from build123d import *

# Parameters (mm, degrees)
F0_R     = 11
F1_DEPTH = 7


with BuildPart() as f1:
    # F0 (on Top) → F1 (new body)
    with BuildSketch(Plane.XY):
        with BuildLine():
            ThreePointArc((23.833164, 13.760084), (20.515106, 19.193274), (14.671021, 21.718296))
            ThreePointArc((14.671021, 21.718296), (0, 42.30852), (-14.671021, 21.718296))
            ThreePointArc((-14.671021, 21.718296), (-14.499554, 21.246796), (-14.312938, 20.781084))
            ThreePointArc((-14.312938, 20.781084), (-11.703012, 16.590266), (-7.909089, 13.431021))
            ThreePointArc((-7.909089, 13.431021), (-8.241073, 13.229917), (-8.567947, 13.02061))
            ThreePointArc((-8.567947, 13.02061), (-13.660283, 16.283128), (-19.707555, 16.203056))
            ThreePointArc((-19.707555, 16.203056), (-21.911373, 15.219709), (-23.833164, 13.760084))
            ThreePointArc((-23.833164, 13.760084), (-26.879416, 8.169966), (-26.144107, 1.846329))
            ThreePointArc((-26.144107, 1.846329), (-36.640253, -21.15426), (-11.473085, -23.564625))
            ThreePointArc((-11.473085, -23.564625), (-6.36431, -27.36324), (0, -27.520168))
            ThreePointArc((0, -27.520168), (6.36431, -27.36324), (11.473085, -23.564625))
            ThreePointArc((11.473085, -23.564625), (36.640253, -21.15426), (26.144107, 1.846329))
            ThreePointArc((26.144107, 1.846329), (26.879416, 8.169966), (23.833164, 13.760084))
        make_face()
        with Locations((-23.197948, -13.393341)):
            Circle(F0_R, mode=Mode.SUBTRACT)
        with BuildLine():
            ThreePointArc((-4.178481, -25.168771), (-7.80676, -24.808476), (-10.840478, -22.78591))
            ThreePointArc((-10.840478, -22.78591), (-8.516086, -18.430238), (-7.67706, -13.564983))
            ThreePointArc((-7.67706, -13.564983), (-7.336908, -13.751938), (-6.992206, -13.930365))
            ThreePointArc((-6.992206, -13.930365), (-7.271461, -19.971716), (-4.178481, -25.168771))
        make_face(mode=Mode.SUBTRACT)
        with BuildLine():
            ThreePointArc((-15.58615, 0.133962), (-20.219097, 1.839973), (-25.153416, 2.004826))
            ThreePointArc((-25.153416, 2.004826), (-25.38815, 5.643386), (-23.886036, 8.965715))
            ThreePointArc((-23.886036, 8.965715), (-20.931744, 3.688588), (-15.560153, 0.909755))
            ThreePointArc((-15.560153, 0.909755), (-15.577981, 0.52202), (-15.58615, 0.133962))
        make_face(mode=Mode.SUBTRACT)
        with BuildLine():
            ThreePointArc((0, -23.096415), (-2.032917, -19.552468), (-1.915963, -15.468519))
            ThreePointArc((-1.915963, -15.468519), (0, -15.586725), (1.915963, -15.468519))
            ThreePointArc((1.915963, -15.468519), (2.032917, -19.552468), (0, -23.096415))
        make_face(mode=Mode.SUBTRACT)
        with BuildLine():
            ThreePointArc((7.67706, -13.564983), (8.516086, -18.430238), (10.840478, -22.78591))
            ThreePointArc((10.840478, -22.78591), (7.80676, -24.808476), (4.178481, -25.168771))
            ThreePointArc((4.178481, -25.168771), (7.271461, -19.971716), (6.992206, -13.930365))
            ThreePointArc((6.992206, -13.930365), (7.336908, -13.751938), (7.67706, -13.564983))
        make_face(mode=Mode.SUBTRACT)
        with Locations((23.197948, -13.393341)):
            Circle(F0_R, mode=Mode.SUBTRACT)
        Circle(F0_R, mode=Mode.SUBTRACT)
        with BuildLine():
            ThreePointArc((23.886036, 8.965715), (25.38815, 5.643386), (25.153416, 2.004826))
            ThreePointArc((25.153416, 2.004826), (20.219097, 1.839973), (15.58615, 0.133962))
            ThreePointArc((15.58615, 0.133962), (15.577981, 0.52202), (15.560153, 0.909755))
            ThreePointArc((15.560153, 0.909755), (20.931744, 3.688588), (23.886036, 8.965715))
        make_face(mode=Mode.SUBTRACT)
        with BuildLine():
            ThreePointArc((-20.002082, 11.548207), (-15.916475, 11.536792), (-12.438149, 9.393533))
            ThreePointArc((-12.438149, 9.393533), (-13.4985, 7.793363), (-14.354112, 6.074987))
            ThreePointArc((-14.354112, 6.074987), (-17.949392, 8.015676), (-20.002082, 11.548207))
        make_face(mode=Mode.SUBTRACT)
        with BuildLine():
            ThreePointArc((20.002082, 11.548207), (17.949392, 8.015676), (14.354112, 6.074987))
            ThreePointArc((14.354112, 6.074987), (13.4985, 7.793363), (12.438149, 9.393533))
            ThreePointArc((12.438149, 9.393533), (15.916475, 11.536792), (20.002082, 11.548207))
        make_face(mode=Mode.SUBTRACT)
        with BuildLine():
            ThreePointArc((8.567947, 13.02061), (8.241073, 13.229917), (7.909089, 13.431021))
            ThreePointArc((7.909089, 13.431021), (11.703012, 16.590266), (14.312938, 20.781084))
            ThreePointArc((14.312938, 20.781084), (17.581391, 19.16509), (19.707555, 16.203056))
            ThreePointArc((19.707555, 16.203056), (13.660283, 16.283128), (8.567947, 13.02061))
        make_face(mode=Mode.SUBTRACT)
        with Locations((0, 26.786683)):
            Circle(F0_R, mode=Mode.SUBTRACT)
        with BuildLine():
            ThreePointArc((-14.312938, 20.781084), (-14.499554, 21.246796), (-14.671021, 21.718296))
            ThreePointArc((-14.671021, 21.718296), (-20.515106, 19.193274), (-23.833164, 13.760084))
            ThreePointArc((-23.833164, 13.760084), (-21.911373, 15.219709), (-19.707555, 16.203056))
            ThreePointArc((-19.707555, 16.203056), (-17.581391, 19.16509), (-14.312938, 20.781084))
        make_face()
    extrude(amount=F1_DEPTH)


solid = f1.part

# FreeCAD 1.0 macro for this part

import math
import FreeCAD as App
import Part
import Sketcher
Q = App.Units.Quantity

doc = App.newDocument("Part")
body = doc.addObject("PartDesign::Body", "Body")

sketch1 = body.newObject("Sketcher::SketchObject", "Sketch")
sketch1.AttachmentSupport = (doc.getObject("XY_Plane"), [""])
sketch1.MapMode = "FlatFace"
sketch1.addGeometry(Part.ArcOfCircle(Part.Circle(App.Vector(13.61554, 11.249931, 0), App.Vector(0, 0, 1), 10.52144), math.radians(13.802452), math.radians(84.242568)), False)
sketch1.addGeometry(Part.ArcOfCircle(Part.Circle(App.Vector(0, 26.786683, 0), App.Vector(0, 0, 1), 15.521837), math.radians(-19.05846), math.radians(199.05846)), False)
sketch1.addGeometry(Part.ArcOfCircle(Part.Circle(App.Vector(-13.61554, 11.249931, 0), App.Vector(0, 0, 1), 10.52144), math.radians(95.757432), math.radians(166.197548)), False)
sketch1.addGeometry(Part.ArcOfCircle(Part.Circle(App.Vector(-16.550496, 6.166438, 0), App.Vector(0, 0, 1), 10.521441), math.radians(133.80245), math.radians(204.242563)), False)
sketch1.addGeometry(Part.ArcOfCircle(Part.Circle(App.Vector(-23.197948, -13.393342, 0), App.Vector(0, 0, 1), 15.521837), math.radians(100.941543), math.radians(319.05846)), False)
sketch1.addGeometry(Part.ArcOfCircle(Part.Circle(App.Vector(-2.934955, -17.41637, 0), App.Vector(0, 0, 1), 10.52144), math.radians(-144.242569), math.radians(-73.802455)), False)
sketch1.addGeometry(Part.ArcOfCircle(Part.Circle(App.Vector(2.934955, -17.41637, 0), App.Vector(0, 0, 1), 10.52144), math.radians(-106.197545), math.radians(-35.757431)), False)
sketch1.addGeometry(Part.ArcOfCircle(Part.Circle(App.Vector(23.197948, -13.393342, 0), App.Vector(0, 0, 1), 15.521837), math.radians(-139.05846), math.radians(79.058457)), False)
sketch1.addGeometry(Part.ArcOfCircle(Part.Circle(App.Vector(16.550496, 6.166438, 0), App.Vector(0, 0, 1), 10.521441), math.radians(-24.242563), math.radians(46.19755)), False)
sketch1.addGeometry(Part.ArcOfCircle(Part.Circle(App.Vector(-0.000003, 26.786682, 0), App.Vector(0, 0, 1), 15.521834), math.radians(-157.237453), math.radians(-120.633585)), False)
sketch1.addGeometry(Part.ArcOfCircle(Part.Circle(App.Vector(0.001059, -0.001684, 0), App.Vector(0, 0, 1), 15.588714), math.radians(120.492653), math.radians(123.34595)), False)
sketch1.addGeometry(Part.ArcOfCircle(Part.Circle(App.Vector(-16.550494, 6.166439, 0), App.Vector(0, 0, 1), 10.521441), math.radians(40.65086), math.radians(107.461193)), False)
sketch1.addGeometry(Part.ArcOfCircle(Part.Circle(App.Vector(-12.7089, 13.423487, 0), App.Vector(0, 0, 1), 7.530417), math.radians(102.298678), math.radians(158.339121)), False)
sketch1.addGeometry(Part.Circle(App.Vector(-23.197948, -13.393341, 0), App.Vector(0, 0, 1), 11), False)
sketch1.addGeometry(Part.ArcOfCircle(Part.Circle(App.Vector(2.934955, -17.416367, 0), App.Vector(0, 0, 1), 10.521442), math.radians(160.650868), math.radians(227.461187)), False)
sketch1.addGeometry(Part.ArcOfCircle(Part.Circle(App.Vector(-5.270631, -17.717974, 0), App.Vector(0, 0, 1), 7.530416), math.radians(-137.701319), math.radians(-81.660877)), False)
sketch1.addGeometry(Part.ArcOfCircle(Part.Circle(App.Vector(-23.197959, -13.393337, 0), App.Vector(0, 0, 1), 15.521848), math.radians(-37.237443), math.radians(-0.63361)), False)
sketch1.addGeometry(Part.ArcOfCircle(Part.Circle(App.Vector(-0.000188, -0.000351, 0), App.Vector(0, 0, 1), 15.586327), math.radians(-119.507592), math.radians(-116.653864)), False)
sketch1.addGeometry(Part.ArcOfCircle(Part.Circle(App.Vector(0.002035, -0.00007, 0), App.Vector(0, 0, 1), 15.588761), math.radians(176.65408), math.radians(179.507367)), False)
sketch1.addGeometry(Part.ArcOfCircle(Part.Circle(App.Vector(-23.197947, -13.393335, 0), App.Vector(0, 0, 1), 15.52183), math.radians(60.633583), math.radians(97.23746)), False)
sketch1.addGeometry(Part.ArcOfCircle(Part.Circle(App.Vector(-17.979526, 4.294486, 0), App.Vector(0, 0, 1), 7.530421), math.radians(141.660899), math.radians(197.701302)), False)
sketch1.addGeometry(Part.ArcOfCircle(Part.Circle(App.Vector(-13.61554, 11.249929, 0), App.Vector(0, 0, 1), 10.521441), math.radians(-167.461188), math.radians(-100.650862)), False)
sketch1.addGeometry(Part.ArcOfCircle(Part.Circle(App.Vector(-5.27063, -17.717974, 0), App.Vector(0, 0, 1), 7.530416), math.radians(-45.58004), math.radians(17.380493)), False)
sketch1.addGeometry(Part.ArcOfCircle(Part.Circle(App.Vector(5.27063, -17.717974, 0), App.Vector(0, 0, 1), 7.530416), math.radians(162.619507), math.radians(225.58004)), False)
sketch1.addGeometry(Part.ArcOfCircle(Part.Circle(App.Vector(0, -0.000008, 0), App.Vector(0, 0, 1), 15.586717), math.radians(-97.060816), math.radians(-82.939184)), False)
sketch1.addGeometry(Part.ArcOfCircle(Part.Circle(App.Vector(0.000188, -0.000351, 0), App.Vector(0, 0, 1), 15.586327), math.radians(-63.346136), math.radians(-60.492408)), False)
sketch1.addGeometry(Part.ArcOfCircle(Part.Circle(App.Vector(23.197959, -13.393337, 0), App.Vector(0, 0, 1), 15.521848), math.radians(-179.36639), math.radians(-142.762557)), False)
sketch1.addGeometry(Part.ArcOfCircle(Part.Circle(App.Vector(5.270631, -17.717974, 0), App.Vector(0, 0, 1), 7.530416), math.radians(-98.339123), math.radians(-42.298681)), False)
sketch1.addGeometry(Part.ArcOfCircle(Part.Circle(App.Vector(-2.934955, -17.416367, 0), App.Vector(0, 0, 1), 10.521442), math.radians(-47.461187), math.radians(19.349132)), False)
sketch1.addGeometry(Part.Circle(App.Vector(23.197948, -13.393341, 0), App.Vector(0, 0, 1), 11), False)
sketch1.addGeometry(Part.Circle(App.Vector(0, 0, 0), App.Vector(0, 0, 1), 11), False)
sketch1.addGeometry(Part.ArcOfCircle(Part.Circle(App.Vector(13.61554, 11.249929, 0), App.Vector(0, 0, 1), 10.521441), math.radians(-79.349138), math.radians(-12.538812)), False)
sketch1.addGeometry(Part.ArcOfCircle(Part.Circle(App.Vector(17.979526, 4.294486, 0), App.Vector(0, 0, 1), 7.530421), math.radians(-17.701302), math.radians(38.339101)), False)
sketch1.addGeometry(Part.ArcOfCircle(Part.Circle(App.Vector(23.197947, -13.393335, 0), App.Vector(0, 0, 1), 15.52183), math.radians(82.76254), math.radians(119.366417)), False)
sketch1.addGeometry(Part.ArcOfCircle(Part.Circle(App.Vector(-0.002035, -0.00007, 0), App.Vector(0, 0, 1), 15.588761), math.radians(0.492633), math.radians(3.34592)), False)
sketch1.addGeometry(Part.ArcOfCircle(Part.Circle(App.Vector(-12.7089, 13.423487, 0), App.Vector(0, 0, 1), 7.530417), math.radians(-165.580032), math.radians(-102.61951)), False)
sketch1.addGeometry(Part.ArcOfCircle(Part.Circle(App.Vector(-17.979529, 4.294489, 0), App.Vector(0, 0, 1), 7.530414), math.radians(42.619509), math.radians(105.580056)), False)
sketch1.addGeometry(Part.ArcOfCircle(Part.Circle(App.Vector(-0.000012, 0.000009, 0), App.Vector(0, 0, 1), 15.58671), math.radians(142.939185), math.radians(157.060826)), False)
sketch1.addGeometry(Part.ArcOfCircle(Part.Circle(App.Vector(17.979529, 4.294489, 0), App.Vector(0, 0, 1), 7.530414), math.radians(74.419944), math.radians(137.380491)), False)
sketch1.addGeometry(Part.ArcOfCircle(Part.Circle(App.Vector(12.7089, 13.423487, 0), App.Vector(0, 0, 1), 7.530417), math.radians(-77.38049), math.radians(-14.419968)), False)
sketch1.addGeometry(Part.ArcOfCircle(Part.Circle(App.Vector(0.000012, 0.000009, 0), App.Vector(0, 0, 1), 15.58671), math.radians(22.939174), math.radians(37.060815)), False)
sketch1.addGeometry(Part.ArcOfCircle(Part.Circle(App.Vector(16.550494, 6.166439, 0), App.Vector(0, 0, 1), 10.521441), math.radians(72.538807), math.radians(139.34914)), False)
sketch1.addGeometry(Part.ArcOfCircle(Part.Circle(App.Vector(-0.001059, -0.001684, 0), App.Vector(0, 0, 1), 15.588714), math.radians(56.65405), math.radians(59.507347)), False)
sketch1.addGeometry(Part.ArcOfCircle(Part.Circle(App.Vector(0.000003, 26.786682, 0), App.Vector(0, 0, 1), 15.521834), math.radians(-59.366415), math.radians(-22.762547)), False)
sketch1.addGeometry(Part.ArcOfCircle(Part.Circle(App.Vector(12.7089, 13.423487, 0), App.Vector(0, 0, 1), 7.530417), math.radians(21.660879), math.radians(77.701322)), False)
sketch1.addGeometry(Part.Circle(App.Vector(0, 26.786683, 0), App.Vector(0, 0, 1), 11), False)
sketch1.addConstraint(Sketcher.Constraint("Coincident", 0, 2, 1, 1))
sketch1.addConstraint(Sketcher.Constraint("Coincident", 1, 2, 2, 1))
sketch1.addConstraint(Sketcher.Constraint("Coincident", 2, 2, 3, 1))
sketch1.addConstraint(Sketcher.Constraint("Coincident", 3, 2, 4, 1))
sketch1.addConstraint(Sketcher.Constraint("Coincident", 4, 2, 5, 1))
sketch1.addConstraint(Sketcher.Constraint("Coincident", 5, 2, 6, 1))
sketch1.addConstraint(Sketcher.Constraint("Coincident", 6, 2, 7, 1))
sketch1.addConstraint(Sketcher.Constraint("Coincident", 7, 2, 8, 1))
sketch1.addConstraint(Sketcher.Constraint("Coincident", 8, 2, 0, 1))
sketch1.addConstraint(Sketcher.Constraint("Coincident", 9, 2, 10, 1))
sketch1.addConstraint(Sketcher.Constraint("Coincident", 10, 2, 11, 1))
sketch1.addConstraint(Sketcher.Constraint("Coincident", 11, 2, 12, 2))
sketch1.addConstraint(Sketcher.Constraint("Coincident", 12, 1, 9, 1))
sketch1.addConstraint(Sketcher.Constraint("Coincident", 14, 2, 15, 2))
sketch1.addConstraint(Sketcher.Constraint("Coincident", 15, 1, 16, 1))
sketch1.addConstraint(Sketcher.Constraint("Coincident", 16, 2, 17, 1))
sketch1.addConstraint(Sketcher.Constraint("Coincident", 17, 2, 14, 1))
sketch1.addConstraint(Sketcher.Constraint("Coincident", 18, 2, 19, 1))
sketch1.addConstraint(Sketcher.Constraint("Coincident", 19, 2, 20, 2))
sketch1.addConstraint(Sketcher.Constraint("Coincident", 20, 1, 21, 1))
sketch1.addConstraint(Sketcher.Constraint("Coincident", 21, 2, 18, 1))
sketch1.addConstraint(Sketcher.Constraint("Coincident", 22, 1, 23, 2))
sketch1.addConstraint(Sketcher.Constraint("Coincident", 23, 1, 24, 1))
sketch1.addConstraint(Sketcher.Constraint("Coincident", 24, 2, 22, 2))
sketch1.addConstraint(Sketcher.Constraint("Coincident", 25, 2, 26, 1))
sketch1.addConstraint(Sketcher.Constraint("Coincident", 26, 2, 27, 2))
sketch1.addConstraint(Sketcher.Constraint("Coincident", 27, 1, 28, 1))
sketch1.addConstraint(Sketcher.Constraint("Coincident", 28, 2, 25, 1))
sketch1.addConstraint(Sketcher.Constraint("Coincident", 31, 2, 32, 2))
sketch1.addConstraint(Sketcher.Constraint("Coincident", 32, 1, 33, 1))
sketch1.addConstraint(Sketcher.Constraint("Coincident", 33, 2, 34, 1))
sketch1.addConstraint(Sketcher.Constraint("Coincident", 34, 2, 31, 1))
sketch1.addConstraint(Sketcher.Constraint("Coincident", 35, 1, 36, 2))
sketch1.addConstraint(Sketcher.Constraint("Coincident", 36, 1, 37, 1))
sketch1.addConstraint(Sketcher.Constraint("Coincident", 37, 2, 35, 2))
sketch1.addConstraint(Sketcher.Constraint("Coincident", 38, 1, 39, 2))
sketch1.addConstraint(Sketcher.Constraint("Coincident", 39, 1, 40, 1))
sketch1.addConstraint(Sketcher.Constraint("Coincident", 40, 2, 38, 2))
sketch1.addConstraint(Sketcher.Constraint("Coincident", 41, 2, 42, 1))
sketch1.addConstraint(Sketcher.Constraint("Coincident", 42, 2, 43, 1))
sketch1.addConstraint(Sketcher.Constraint("Coincident", 43, 2, 44, 2))
sketch1.addConstraint(Sketcher.Constraint("Coincident", 44, 1, 41, 1))
sketch1.addConstraint(Sketcher.Constraint("Coincident", 24, 3, -1, 1))
sketch1.addConstraint(Sketcher.Constraint("Coincident", 30, 3, -1, 1))
sketch1.addConstraint(Sketcher.Constraint("Coincident", 9, 3, 1, 3))
sketch1.addConstraint(Sketcher.Constraint("Coincident", 11, 3, 3, 3))
sketch1.addConstraint(Sketcher.Constraint("Coincident", 13, 3, 4, 3))
sketch1.addConstraint(Sketcher.Constraint("Coincident", 14, 3, 6, 3))
sketch1.addConstraint(Sketcher.Constraint("Coincident", 19, 3, 4, 3))
sketch1.addConstraint(Sketcher.Constraint("Coincident", 21, 3, 2, 3))
sketch1.addConstraint(Sketcher.Constraint("Coincident", 22, 3, 15, 3))
sketch1.addConstraint(Sketcher.Constraint("Coincident", 27, 3, 23, 3))
sketch1.addConstraint(Sketcher.Constraint("Coincident", 28, 3, 5, 3))
sketch1.addConstraint(Sketcher.Constraint("Coincident", 29, 3, 7, 3))
sketch1.addConstraint(Sketcher.Constraint("Coincident", 31, 3, 0, 3))
sketch1.addConstraint(Sketcher.Constraint("Coincident", 33, 3, 7, 3))
sketch1.addConstraint(Sketcher.Constraint("Coincident", 35, 3, 12, 3))
sketch1.addConstraint(Sketcher.Constraint("Coincident", 36, 3, 20, 3))
sketch1.addConstraint(Sketcher.Constraint("Coincident", 38, 3, 32, 3))
sketch1.addConstraint(Sketcher.Constraint("Coincident", 41, 3, 8, 3))
sketch1.addConstraint(Sketcher.Constraint("Coincident", 43, 3, 1, 3))
sketch1.addConstraint(Sketcher.Constraint("Coincident", 44, 3, 39, 3))
sketch1.addConstraint(Sketcher.Constraint("Coincident", 45, 3, 1, 3))
sketch1.addConstraint(Sketcher.Constraint("Equal", 0, 2))
sketch1.addConstraint(Sketcher.Constraint("Equal", 2, 3))
sketch1.addConstraint(Sketcher.Constraint("Equal", 1, 4))
sketch1.addConstraint(Sketcher.Constraint("Equal", 3, 5))
sketch1.addConstraint(Sketcher.Constraint("Equal", 5, 6))
sketch1.addConstraint(Sketcher.Constraint("Equal", 4, 7))
sketch1.addConstraint(Sketcher.Constraint("Equal", 6, 8))
sketch1.addConstraint(Sketcher.Constraint("Equal", 8, 11))
sketch1.addConstraint(Sketcher.Constraint("Equal", 11, 14))
sketch1.addConstraint(Sketcher.Constraint("Equal", 12, 15))
sketch1.addConstraint(Sketcher.Constraint("Equal", 14, 21))
sketch1.addConstraint(Sketcher.Constraint("Equal", 15, 22))
sketch1.addConstraint(Sketcher.Constraint("Equal", 22, 23))
sketch1.addConstraint(Sketcher.Constraint("Equal", 17, 25))
sketch1.addConstraint(Sketcher.Constraint("Equal", 16, 26))
sketch1.addConstraint(Sketcher.Constraint("Equal", 23, 27))
sketch1.addConstraint(Sketcher.Constraint("Equal", 21, 28))
sketch1.addConstraint(Sketcher.Constraint("Equal", 13, 29))
sketch1.addConstraint(Sketcher.Constraint("Equal", 29, 30))
sketch1.addConstraint(Sketcher.Constraint("Equal", 28, 31))
sketch1.addConstraint(Sketcher.Constraint("Equal", 20, 32))
sketch1.addConstraint(Sketcher.Constraint("Equal", 19, 33))
sketch1.addConstraint(Sketcher.Constraint("Equal", 18, 34))
sketch1.addConstraint(Sketcher.Constraint("Equal", 27, 35))
sketch1.addConstraint(Sketcher.Constraint("Equal", 36, 38))
sketch1.addConstraint(Sketcher.Constraint("Equal", 35, 39))
sketch1.addConstraint(Sketcher.Constraint("Equal", 37, 40))
sketch1.addConstraint(Sketcher.Constraint("Equal", 31, 41))
sketch1.addConstraint(Sketcher.Constraint("Equal", 10, 42))
sketch1.addConstraint(Sketcher.Constraint("Equal", 9, 43))
sketch1.addConstraint(Sketcher.Constraint("Equal", 39, 44))
sketch1.addConstraint(Sketcher.Constraint("Equal", 30, 45))
sketch1.addConstraint(Sketcher.Constraint("Symmetric", 0, 3, 2, 3, -2))
sketch1.addConstraint(Sketcher.Constraint("Symmetric", 5, 3, 6, 3, -2))
sketch1.addConstraint(Sketcher.Constraint("Symmetric", 4, 3, 7, 3, -2))
sketch1.addConstraint(Sketcher.Constraint("Symmetric", 3, 3, 8, 3, -2))
sketch1.addConstraint(Sketcher.Constraint("Symmetric", 15, 3, 23, 3, -2))
sketch1.addConstraint(Sketcher.Constraint("Symmetric", 17, 3, 25, 3, -2))
sketch1.addConstraint(Sketcher.Constraint("Symmetric", 16, 3, 26, 3, -2))
sketch1.addConstraint(Sketcher.Constraint("Symmetric", 20, 3, 32, 3, -2))
sketch1.addConstraint(Sketcher.Constraint("Symmetric", 18, 3, 34, 3, -2))
sketch1.addConstraint(Sketcher.Constraint("Symmetric", 12, 3, 39, 3, -2))
sketch1.addConstraint(Sketcher.Constraint("Symmetric", 37, 3, 40, 3, -2))
sketch1.addConstraint(Sketcher.Constraint("Symmetric", 10, 3, 42, 3, -2))
sketch1.addConstraint(Sketcher.Constraint("PointOnObject", 1, 3, -2))
sketch1.addConstraint(Sketcher.Constraint("Diameter", 13, Q("22 mm")))
sketch1.addConstraint(Sketcher.Constraint("Radius", 0, Q("10.52144 mm")))
sketch1.addConstraint(Sketcher.Constraint("Radius", 18, Q("15.588761 mm")))
sketch1.addConstraint(Sketcher.Constraint("Radius", 19, Q("15.52183 mm")))
sketch1.addConstraint(Sketcher.Constraint("Radius", 20, Q("7.530421 mm")))
sketch1.addConstraint(Sketcher.Constraint("Radius", 37, Q("15.58671 mm")))
sketch1.addConstraint(Sketcher.Constraint("Radius", 1, Q("15.521837 mm")))
sketch1.addConstraint(Sketcher.Constraint("Radius", 9, Q("15.521834 mm")))
sketch1.addConstraint(Sketcher.Constraint("Radius", 10, Q("15.588714 mm")))
sketch1.addConstraint(Sketcher.Constraint("Radius", 12, Q("7.530417 mm")))
sketch1.addConstraint(Sketcher.Constraint("Radius", 16, Q("15.521848 mm")))
sketch1.addConstraint(Sketcher.Constraint("Radius", 17, Q("15.586327 mm")))
sketch1.addConstraint(Sketcher.Constraint("Radius", 24, Q("15.586717 mm")))
sketch1.addConstraint(Sketcher.Constraint("Radius", 36, Q("7.530414 mm")))
sketch1.addConstraint(Sketcher.Constraint("DistanceX", 12, 3, -1, 1, Q("12.7089 mm")))
sketch1.addConstraint(Sketcher.Constraint("DistanceX", -1, 1, 0, 3, Q("13.61554 mm")))
sketch1.addConstraint(Sketcher.Constraint("DistanceY", -1, 1, 0, 3, Q("11.249931 mm")))
sketch1.addConstraint(Sketcher.Constraint("DistanceX", 4, 3, -1, 1, Q("23.197948 mm")))
sketch1.addConstraint(Sketcher.Constraint("DistanceY", 4, 3, -1, 1, Q("13.393342 mm")))
sketch1.addConstraint(Sketcher.Constraint("DistanceY", 5, 3, -1, 1, Q("17.41637 mm")))
sketch1.addConstraint(Sketcher.Constraint("DistanceY", -1, 1, 9, 3, Q("26.786682 mm")))
sketch1.addConstraint(Sketcher.Constraint("DistanceX", -1, 1, 10, 3, Q("0.001059 mm")))
sketch1.addConstraint(Sketcher.Constraint("DistanceY", -1, 1, 11, 3, Q("6.166439 mm")))
sketch1.addConstraint(Sketcher.Constraint("DistanceX", 15, 3, -1, 1, Q("5.270631 mm")))
sketch1.addConstraint(Sketcher.Constraint("DistanceX", 16, 3, -1, 1, Q("23.197959 mm")))
sketch1.addConstraint(Sketcher.Constraint("DistanceY", 17, 3, -1, 1, Q("0.000351 mm")))
sketch1.addConstraint(Sketcher.Constraint("DistanceX", 36, 3, -1, 1, Q("17.979529 mm")))
sketch1.addConstraint(Sketcher.Constraint("DistanceY", -1, 1, 36, 3, Q("4.294489 mm")))
sketch1.addConstraint(Sketcher.Constraint("DistanceY", -1, 1, 3, 2, Q("1.846329 mm")))
sketch1.addConstraint(Sketcher.Constraint("DistanceY", 5, 2, -1, 1, Q("27.520168 mm")))
sketch1.addConstraint(Sketcher.Constraint("DistanceX", 9, 2, -1, 1, Q("7.909089 mm")))
sketch1.addConstraint(Sketcher.Constraint("DistanceX", 14, 2, -1, 1, Q("4.178481 mm")))
sketch1.addConstraint(Sketcher.Constraint("DistanceX", 15, 1, -1, 1, Q("10.840478 mm")))
sketch1.addConstraint(Sketcher.Constraint("DistanceX", 16, 2, -1, 1, Q("7.67706 mm")))
sketch1.addConstraint(Sketcher.Constraint("DistanceX", 18, 2, -1, 1, Q("15.58615 mm")))
sketch1.addConstraint(Sketcher.Constraint("DistanceX", 36, 1, -1, 1, Q("12.438149 mm")))
sketch1.addConstraint(Sketcher.Constraint("DistanceX", 37, 2, -1, 1, Q("14.354112 mm")))
sketch1.addConstraint(Sketcher.Constraint("DistanceY", -1, 1, 12, 3, Q("13.423487 mm")))
sketch1.addConstraint(Sketcher.Constraint("DistanceX", -1, 1, 18, 3, Q("0.002035 mm")))
pad1 = body.newObject("PartDesign::Pad", "Pad")
pad1.Profile = sketch1
pad1.Length = 7

doc.recompute()
